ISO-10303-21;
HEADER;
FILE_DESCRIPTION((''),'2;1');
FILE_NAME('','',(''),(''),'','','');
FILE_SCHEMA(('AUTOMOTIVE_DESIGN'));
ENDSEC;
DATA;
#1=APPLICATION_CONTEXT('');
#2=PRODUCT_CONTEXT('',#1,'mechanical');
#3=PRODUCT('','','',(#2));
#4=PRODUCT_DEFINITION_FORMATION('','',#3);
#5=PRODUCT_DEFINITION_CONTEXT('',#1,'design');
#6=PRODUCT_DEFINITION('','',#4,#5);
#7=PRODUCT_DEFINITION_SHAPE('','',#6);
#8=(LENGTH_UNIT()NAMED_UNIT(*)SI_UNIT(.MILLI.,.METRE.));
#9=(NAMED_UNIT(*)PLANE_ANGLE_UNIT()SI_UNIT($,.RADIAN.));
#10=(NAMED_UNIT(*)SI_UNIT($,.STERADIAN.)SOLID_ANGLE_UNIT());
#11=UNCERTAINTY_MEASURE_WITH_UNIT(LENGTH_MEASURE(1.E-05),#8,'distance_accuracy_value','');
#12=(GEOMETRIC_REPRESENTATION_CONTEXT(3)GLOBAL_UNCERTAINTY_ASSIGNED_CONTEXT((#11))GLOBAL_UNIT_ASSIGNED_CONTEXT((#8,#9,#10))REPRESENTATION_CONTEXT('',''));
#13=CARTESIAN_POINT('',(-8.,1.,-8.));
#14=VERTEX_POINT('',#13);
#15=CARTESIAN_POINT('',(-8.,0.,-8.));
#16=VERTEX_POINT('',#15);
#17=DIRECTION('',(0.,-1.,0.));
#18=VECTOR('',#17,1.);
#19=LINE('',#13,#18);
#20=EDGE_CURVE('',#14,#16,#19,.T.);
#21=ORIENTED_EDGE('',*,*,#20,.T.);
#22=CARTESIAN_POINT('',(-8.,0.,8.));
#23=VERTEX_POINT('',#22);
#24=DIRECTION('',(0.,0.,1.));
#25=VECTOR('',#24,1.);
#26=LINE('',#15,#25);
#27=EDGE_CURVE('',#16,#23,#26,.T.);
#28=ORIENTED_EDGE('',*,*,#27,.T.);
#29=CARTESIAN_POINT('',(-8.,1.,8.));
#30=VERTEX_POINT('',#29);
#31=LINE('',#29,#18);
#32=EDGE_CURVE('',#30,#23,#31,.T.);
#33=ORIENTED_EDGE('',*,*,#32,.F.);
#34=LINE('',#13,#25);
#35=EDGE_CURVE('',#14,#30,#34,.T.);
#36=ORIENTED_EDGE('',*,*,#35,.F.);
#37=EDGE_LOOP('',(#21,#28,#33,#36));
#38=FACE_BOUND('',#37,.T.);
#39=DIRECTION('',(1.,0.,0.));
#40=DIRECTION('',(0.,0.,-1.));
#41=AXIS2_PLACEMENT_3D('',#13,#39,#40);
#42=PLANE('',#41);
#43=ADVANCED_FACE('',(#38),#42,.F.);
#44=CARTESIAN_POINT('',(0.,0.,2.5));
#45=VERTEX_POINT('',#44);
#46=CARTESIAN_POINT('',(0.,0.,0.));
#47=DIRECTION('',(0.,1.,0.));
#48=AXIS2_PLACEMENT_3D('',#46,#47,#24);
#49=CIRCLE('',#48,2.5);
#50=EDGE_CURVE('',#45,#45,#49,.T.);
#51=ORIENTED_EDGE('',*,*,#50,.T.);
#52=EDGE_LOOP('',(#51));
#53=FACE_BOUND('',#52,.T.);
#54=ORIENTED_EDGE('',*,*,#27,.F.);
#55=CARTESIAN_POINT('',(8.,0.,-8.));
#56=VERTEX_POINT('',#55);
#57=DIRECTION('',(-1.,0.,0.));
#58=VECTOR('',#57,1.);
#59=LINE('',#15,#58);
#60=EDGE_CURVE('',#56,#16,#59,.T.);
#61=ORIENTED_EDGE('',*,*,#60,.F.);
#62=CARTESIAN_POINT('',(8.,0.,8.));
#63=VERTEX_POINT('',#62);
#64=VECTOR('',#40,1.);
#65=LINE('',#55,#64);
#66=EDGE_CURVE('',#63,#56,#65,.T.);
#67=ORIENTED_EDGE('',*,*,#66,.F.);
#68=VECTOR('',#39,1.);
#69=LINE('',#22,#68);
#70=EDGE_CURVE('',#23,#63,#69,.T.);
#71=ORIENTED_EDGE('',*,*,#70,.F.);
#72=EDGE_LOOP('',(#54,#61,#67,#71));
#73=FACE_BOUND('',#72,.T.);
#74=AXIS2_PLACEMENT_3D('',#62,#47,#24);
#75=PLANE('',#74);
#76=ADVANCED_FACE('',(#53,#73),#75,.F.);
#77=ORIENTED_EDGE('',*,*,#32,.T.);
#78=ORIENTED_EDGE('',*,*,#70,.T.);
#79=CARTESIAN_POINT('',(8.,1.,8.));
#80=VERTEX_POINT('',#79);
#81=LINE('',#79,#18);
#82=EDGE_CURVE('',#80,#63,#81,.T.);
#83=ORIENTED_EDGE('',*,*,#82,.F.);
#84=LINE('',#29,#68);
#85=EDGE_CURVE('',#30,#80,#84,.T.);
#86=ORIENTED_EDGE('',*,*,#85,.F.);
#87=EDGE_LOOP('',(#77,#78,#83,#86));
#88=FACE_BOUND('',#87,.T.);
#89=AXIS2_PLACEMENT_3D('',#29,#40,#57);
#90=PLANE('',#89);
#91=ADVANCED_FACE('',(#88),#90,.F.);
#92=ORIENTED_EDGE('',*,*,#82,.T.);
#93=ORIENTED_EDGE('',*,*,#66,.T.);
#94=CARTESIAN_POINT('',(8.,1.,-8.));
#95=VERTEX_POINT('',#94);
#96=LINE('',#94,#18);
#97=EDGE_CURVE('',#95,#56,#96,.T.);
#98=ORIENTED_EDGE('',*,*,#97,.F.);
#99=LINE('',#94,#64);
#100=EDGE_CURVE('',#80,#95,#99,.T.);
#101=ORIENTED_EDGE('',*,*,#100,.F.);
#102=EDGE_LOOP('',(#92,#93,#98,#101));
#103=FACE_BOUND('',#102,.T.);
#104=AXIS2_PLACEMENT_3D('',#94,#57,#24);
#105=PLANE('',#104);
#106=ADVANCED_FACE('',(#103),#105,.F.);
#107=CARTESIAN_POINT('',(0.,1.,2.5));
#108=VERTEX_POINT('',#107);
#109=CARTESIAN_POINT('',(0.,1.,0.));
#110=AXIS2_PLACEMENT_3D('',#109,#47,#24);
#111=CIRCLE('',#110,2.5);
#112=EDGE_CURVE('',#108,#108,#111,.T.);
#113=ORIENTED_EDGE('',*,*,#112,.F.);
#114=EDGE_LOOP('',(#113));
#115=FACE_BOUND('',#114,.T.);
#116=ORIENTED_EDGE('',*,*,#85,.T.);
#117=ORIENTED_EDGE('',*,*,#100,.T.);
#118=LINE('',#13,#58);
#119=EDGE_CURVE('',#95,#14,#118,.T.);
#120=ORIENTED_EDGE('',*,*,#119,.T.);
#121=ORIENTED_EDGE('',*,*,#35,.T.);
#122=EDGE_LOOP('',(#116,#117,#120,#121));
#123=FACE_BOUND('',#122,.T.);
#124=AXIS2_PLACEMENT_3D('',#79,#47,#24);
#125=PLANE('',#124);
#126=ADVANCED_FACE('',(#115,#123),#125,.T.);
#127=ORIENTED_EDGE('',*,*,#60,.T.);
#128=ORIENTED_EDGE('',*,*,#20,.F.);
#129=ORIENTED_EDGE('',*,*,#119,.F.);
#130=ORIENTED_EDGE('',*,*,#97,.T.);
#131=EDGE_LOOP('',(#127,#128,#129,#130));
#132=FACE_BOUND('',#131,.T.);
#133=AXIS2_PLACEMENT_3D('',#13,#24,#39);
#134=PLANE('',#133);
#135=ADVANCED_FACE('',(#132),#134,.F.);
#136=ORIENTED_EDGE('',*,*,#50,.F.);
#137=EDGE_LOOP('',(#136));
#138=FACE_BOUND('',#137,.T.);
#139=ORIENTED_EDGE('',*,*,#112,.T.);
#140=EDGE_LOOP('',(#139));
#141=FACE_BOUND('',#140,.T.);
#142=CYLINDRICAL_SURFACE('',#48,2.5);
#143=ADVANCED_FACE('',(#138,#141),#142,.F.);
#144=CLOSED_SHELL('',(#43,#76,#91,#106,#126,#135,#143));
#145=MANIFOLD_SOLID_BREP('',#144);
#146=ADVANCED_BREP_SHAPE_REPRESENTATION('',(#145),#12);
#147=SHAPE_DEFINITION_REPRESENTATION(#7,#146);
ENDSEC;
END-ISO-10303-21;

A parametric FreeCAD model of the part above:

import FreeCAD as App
import Part
import Sketcher

V = App.Vector
Q = App.Units.Quantity


def add_polygon(sketch, points):
    """Adds a closed chain of lines whose ends are joined by coincident constraints."""
    first, n = sketch.GeometryCount, len(points)
    for a, b in zip(points, points[1:] + points[:1]):
        sketch.addGeometry(Part.LineSegment(App.Vector(*a, 0), App.Vector(*b, 0)), False)
    for i in range(n):
        sketch.addConstraint(Sketcher.Constraint("Coincident", first + i, 2, first + (i + 1) % n, 1))

doc = App.newDocument("Part")
body = doc.addObject("PartDesign::Body", "Body")

sketch1 = doc.addObject("Sketcher::SketchObject", "Sketch")
body.addObject(sketch1)
sketch1.AttachmentSupport = (doc.XZ_Plane, [""])
sketch1.MapMode = "FlatFace"
add_polygon(sketch1, [(-8, -8), (-8, 8), (8, 8), (8, -8)])
sketch1.addConstraint(Sketcher.Constraint("Vertical", 0))
sketch1.addConstraint(Sketcher.Constraint("Horizontal", 1))
sketch1.addConstraint(Sketcher.Constraint("Vertical", 2))
sketch1.addConstraint(Sketcher.Constraint("Horizontal", 3))
sketch1.addConstraint(Sketcher.Constraint("Symmetric", 0, 2, 2, 2, -1, 1))
sketch1.addConstraint(Sketcher.Constraint("Equal", 3, 0))
sketch1.addConstraint(Sketcher.Constraint("DistanceX", 1, 1, 1, 2, Q("16 mm")))
pad1 = doc.addObject("PartDesign::Pad", "Pad")
body.addObject(pad1)
pad1.Profile = sketch1
pad1.Length = 1
pad1.Reversed = True

sketch2 = doc.addObject("Sketcher::SketchObject", "Sketch001")
body.addObject(sketch2)
sketch2.AttachmentSupport = (doc.XZ_Plane, [""])
sketch2.MapMode = "FlatFace"
sketch2.AttachmentOffset = App.Placement(V(0, 0, -1), App.Rotation())
sketch2.addGeometry(Part.Circle(V(0, 0, 0), V(0, 0, 1), 2.5), False)
sketch2.addConstraint(Sketcher.Constraint("Coincident", 0, 3, -1, 1))
sketch2.addConstraint(Sketcher.Constraint("Diameter", 0, Q("5 mm")))
pocket1 = doc.addObject("PartDesign::Pocket", "Pocket")
body.addObject(pocket1)
pocket1.Profile = sketch2
pocket1.Length = 1
pocket1.Reversed = True

doc.recompute()
